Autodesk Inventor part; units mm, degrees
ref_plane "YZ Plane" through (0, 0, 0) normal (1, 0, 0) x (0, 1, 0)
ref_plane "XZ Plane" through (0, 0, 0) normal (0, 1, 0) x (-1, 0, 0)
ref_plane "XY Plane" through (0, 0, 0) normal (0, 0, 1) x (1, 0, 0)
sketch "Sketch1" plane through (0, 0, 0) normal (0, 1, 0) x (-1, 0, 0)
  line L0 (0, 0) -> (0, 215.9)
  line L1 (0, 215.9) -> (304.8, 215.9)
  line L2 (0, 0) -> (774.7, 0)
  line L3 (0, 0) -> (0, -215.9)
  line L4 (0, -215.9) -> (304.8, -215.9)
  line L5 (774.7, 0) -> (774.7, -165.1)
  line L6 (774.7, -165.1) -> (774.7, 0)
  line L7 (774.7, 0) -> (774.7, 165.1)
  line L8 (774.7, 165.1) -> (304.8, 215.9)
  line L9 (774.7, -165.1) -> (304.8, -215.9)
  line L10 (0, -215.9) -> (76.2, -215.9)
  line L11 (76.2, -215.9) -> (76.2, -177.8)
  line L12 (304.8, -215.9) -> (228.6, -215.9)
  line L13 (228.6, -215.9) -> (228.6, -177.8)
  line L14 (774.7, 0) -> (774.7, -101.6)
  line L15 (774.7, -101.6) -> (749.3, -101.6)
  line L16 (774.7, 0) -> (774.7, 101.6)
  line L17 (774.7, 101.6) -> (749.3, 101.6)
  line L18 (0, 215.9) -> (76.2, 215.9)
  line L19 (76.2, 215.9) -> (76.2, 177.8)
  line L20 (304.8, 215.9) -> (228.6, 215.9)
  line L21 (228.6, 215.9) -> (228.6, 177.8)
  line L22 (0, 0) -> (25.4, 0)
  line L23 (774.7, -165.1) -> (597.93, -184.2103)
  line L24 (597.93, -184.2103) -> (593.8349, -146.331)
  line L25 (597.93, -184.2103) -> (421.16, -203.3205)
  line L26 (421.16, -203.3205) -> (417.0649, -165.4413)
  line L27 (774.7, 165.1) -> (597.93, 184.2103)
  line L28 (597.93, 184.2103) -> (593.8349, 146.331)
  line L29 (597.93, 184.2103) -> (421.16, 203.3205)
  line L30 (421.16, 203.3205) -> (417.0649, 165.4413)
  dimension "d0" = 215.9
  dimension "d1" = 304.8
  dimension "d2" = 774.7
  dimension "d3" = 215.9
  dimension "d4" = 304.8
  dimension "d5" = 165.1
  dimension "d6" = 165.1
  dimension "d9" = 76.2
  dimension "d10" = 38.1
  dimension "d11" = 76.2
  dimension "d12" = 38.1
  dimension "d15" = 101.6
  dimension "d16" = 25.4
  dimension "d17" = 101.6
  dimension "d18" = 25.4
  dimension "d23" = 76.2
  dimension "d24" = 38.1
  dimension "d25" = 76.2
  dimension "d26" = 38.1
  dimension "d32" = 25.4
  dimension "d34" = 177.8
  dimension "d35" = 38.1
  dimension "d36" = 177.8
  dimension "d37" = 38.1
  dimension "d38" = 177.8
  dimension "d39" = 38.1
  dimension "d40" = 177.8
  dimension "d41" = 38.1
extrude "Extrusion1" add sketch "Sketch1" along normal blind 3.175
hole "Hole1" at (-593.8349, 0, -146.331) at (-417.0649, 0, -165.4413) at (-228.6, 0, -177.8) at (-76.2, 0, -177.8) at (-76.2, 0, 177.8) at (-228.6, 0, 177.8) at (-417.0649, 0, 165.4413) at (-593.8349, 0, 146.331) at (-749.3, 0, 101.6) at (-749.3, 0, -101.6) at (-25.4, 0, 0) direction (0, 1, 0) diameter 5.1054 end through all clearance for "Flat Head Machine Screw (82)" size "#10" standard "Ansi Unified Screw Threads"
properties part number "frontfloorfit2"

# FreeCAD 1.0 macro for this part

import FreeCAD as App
import Part
import Sketcher

V = App.Vector
Q = App.Units.Quantity

doc = App.newDocument("Part")
body = doc.addObject("PartDesign::Body", "Body")

# Sketch on XZ plane
sketch1 = body.newObject("Sketcher::SketchObject", "Sketch")
sketch1.AttachmentSupport = (doc.getObject("XZ_Plane"), [""])
sketch1.MapMode = "FlatFace"
sketch1.addGeometry([
    Part.LineSegment(V(0, 215.9, 0), V(0, -215.9, 0)),  # 0
    Part.LineSegment(V(0, -215.9, 0), V(-304.8, -215.9, 0)),  # 1
    Part.LineSegment(V(-304.8, -215.9, 0), V(-774.7, -165.1, 0)),  # 2
    Part.LineSegment(V(-774.7, -165.1, 0), V(-774.7, 165.1, 0)),  # 3
    Part.LineSegment(V(-774.7, 165.1, 0), V(-304.8, 215.9, 0)),  # 4
    Part.LineSegment(V(-304.8, 215.9, 0), V(0, 215.9, 0)),  # 5
], False)
sketch1.addConstraint([
    Sketcher.Constraint("Coincident", 0, 2, 1, 1),
    Sketcher.Constraint("Coincident", 1, 2, 2, 1),
    Sketcher.Constraint("Coincident", 2, 2, 3, 1),
    Sketcher.Constraint("Coincident", 3, 2, 4, 1),
    Sketcher.Constraint("Coincident", 4, 2, 5, 1),
    Sketcher.Constraint("Coincident", 5, 2, 0, 1),
    Sketcher.Constraint("Vertical", 0),
    Sketcher.Constraint("Horizontal", 1),
    Sketcher.Constraint("Vertical", 3),
    Sketcher.Constraint("Horizontal", 5),
    Sketcher.Constraint("Symmetric", 0, 2, 5, 2, -1, 1),
    Sketcher.Constraint("Vertical", 1, 2, 4, 2),
    Sketcher.Constraint("Equal", 2, 4),
    Sketcher.Constraint("DistanceX", 1, 2, 1, 1, Q("12 in")),
    Sketcher.Constraint("DistanceY", 0, 2, -1, 1, Q("8.5 in")),
    Sketcher.Constraint("DistanceX", 2, 2, -1, 1, Q("30.5 in")),
    Sketcher.Constraint("DistanceY", 2, 2, -1, 1, Q("6.5 in")),
])
pad1 = body.newObject("PartDesign::Pad", "Pad")
pad1.Profile = sketch1
pad1.Length = Q("0.125 in")
pad1.Reversed = True

# Sketch on XZ plane
sketch2 = body.newObject("Sketcher::SketchObject", "Sketch001")
sketch2.AttachmentSupport = (doc.getObject("XZ_Plane"), [""])
sketch2.MapMode = "FlatFace"
sketch2.addGeometry([
    Part.Circle(V(-593.8349, -146.331, 0), V(0, 0, 1), 2.5527),  # 0
    Part.Circle(V(-417.0649, -165.4413, 0), V(0, 0, 1), 2.5527),  # 1
    Part.Circle(V(-228.6, -177.8, 0), V(0, 0, 1), 2.5527),  # 2
    Part.Circle(V(-76.2, -177.8, 0), V(0, 0, 1), 2.5527),  # 3
    Part.Circle(V(-76.2, 177.8, 0), V(0, 0, 1), 2.5527),  # 4
    Part.Circle(V(-228.6, 177.8, 0), V(0, 0, 1), 2.5527),  # 5
    Part.Circle(V(-417.0649, 165.4413, 0), V(0, 0, 1), 2.5527),  # 6
    Part.Circle(V(-593.8349, 146.331, 0), V(0, 0, 1), 2.5527),  # 7
    Part.Circle(V(-749.3, 101.6, 0), V(0, 0, 1), 2.5527),  # 8
    Part.Circle(V(-749.3, -101.6, 0), V(0, 0, 1), 2.5527),  # 9
    Part.Circle(V(-25.4, 0, 0), V(0, 0, 1), 2.5527),  # 10
], False)
sketch2.addConstraint([
    Sketcher.Constraint("Equal", 0, 1),
    Sketcher.Constraint("Equal", 1, 2),
    Sketcher.Constraint("Equal", 2, 3),
    Sketcher.Constraint("Equal", 3, 4),
    Sketcher.Constraint("Equal", 4, 5),
    Sketcher.Constraint("Equal", 5, 6),
    Sketcher.Constraint("Equal", 6, 7),
    Sketcher.Constraint("Equal", 7, 8),
    Sketcher.Constraint("Equal", 8, 9),
    Sketcher.Constraint("Equal", 9, 10),
    Sketcher.Constraint("Symmetric", 3, 3, 4, 3, -1),
    Sketcher.Constraint("Symmetric", 2, 3, 5, 3, -1),
    Sketcher.Constraint("Symmetric", 1, 3, 6, 3, -1),
    Sketcher.Constraint("Symmetric", 0, 3, 7, 3, -1),
    Sketcher.Constraint("Symmetric", 8, 3, 9, 3, -1),
    Sketcher.Constraint("PointOnObject", 10, 3, -1),
    Sketcher.Constraint("Horizontal", 2, 3, 3, 3),
    Sketcher.Constraint("Diameter", 0, Q("0.201 in")),
    Sketcher.Constraint("DistanceX", 2, 3, -1, 1, Q("9 in")),
    Sketcher.Constraint("DistanceY", 2, 3, -1, 1, Q("7 in")),
    Sketcher.Constraint("DistanceX", 3, 3, -1, 1, Q("3 in")),
    Sketcher.Constraint("DistanceY", -1, 1, 8, 3, Q("4 in")),
    Sketcher.Constraint("DistanceX", 10, 3, -1, 1, Q("1 in")),
    Sketcher.Constraint("DistanceX", 8, 3, -1, 1, Q("29.5 in")),
    Sketcher.Constraint("DistanceY", 0, 3, 6, 3, Q("12.2745 in")),
    Sketcher.Constraint("DistanceX", 0, 3, -1, 1, Q("593.835 mm")),
    Sketcher.Constraint("DistanceY", 0, 3, -1, 1, Q("146.331 mm")),
    Sketcher.Constraint("DistanceX", 1, 3, -1, 1, Q("417.065 mm")),
])
doc.recompute()
hole = body.newObject("PartDesign::Hole", "Hole")
hole.Profile = sketch2
hole.ThreadType = "None"
hole.Diameter = Q("0.201 in")
hole.DepthType = "ThroughAll"

doc.recompute()
